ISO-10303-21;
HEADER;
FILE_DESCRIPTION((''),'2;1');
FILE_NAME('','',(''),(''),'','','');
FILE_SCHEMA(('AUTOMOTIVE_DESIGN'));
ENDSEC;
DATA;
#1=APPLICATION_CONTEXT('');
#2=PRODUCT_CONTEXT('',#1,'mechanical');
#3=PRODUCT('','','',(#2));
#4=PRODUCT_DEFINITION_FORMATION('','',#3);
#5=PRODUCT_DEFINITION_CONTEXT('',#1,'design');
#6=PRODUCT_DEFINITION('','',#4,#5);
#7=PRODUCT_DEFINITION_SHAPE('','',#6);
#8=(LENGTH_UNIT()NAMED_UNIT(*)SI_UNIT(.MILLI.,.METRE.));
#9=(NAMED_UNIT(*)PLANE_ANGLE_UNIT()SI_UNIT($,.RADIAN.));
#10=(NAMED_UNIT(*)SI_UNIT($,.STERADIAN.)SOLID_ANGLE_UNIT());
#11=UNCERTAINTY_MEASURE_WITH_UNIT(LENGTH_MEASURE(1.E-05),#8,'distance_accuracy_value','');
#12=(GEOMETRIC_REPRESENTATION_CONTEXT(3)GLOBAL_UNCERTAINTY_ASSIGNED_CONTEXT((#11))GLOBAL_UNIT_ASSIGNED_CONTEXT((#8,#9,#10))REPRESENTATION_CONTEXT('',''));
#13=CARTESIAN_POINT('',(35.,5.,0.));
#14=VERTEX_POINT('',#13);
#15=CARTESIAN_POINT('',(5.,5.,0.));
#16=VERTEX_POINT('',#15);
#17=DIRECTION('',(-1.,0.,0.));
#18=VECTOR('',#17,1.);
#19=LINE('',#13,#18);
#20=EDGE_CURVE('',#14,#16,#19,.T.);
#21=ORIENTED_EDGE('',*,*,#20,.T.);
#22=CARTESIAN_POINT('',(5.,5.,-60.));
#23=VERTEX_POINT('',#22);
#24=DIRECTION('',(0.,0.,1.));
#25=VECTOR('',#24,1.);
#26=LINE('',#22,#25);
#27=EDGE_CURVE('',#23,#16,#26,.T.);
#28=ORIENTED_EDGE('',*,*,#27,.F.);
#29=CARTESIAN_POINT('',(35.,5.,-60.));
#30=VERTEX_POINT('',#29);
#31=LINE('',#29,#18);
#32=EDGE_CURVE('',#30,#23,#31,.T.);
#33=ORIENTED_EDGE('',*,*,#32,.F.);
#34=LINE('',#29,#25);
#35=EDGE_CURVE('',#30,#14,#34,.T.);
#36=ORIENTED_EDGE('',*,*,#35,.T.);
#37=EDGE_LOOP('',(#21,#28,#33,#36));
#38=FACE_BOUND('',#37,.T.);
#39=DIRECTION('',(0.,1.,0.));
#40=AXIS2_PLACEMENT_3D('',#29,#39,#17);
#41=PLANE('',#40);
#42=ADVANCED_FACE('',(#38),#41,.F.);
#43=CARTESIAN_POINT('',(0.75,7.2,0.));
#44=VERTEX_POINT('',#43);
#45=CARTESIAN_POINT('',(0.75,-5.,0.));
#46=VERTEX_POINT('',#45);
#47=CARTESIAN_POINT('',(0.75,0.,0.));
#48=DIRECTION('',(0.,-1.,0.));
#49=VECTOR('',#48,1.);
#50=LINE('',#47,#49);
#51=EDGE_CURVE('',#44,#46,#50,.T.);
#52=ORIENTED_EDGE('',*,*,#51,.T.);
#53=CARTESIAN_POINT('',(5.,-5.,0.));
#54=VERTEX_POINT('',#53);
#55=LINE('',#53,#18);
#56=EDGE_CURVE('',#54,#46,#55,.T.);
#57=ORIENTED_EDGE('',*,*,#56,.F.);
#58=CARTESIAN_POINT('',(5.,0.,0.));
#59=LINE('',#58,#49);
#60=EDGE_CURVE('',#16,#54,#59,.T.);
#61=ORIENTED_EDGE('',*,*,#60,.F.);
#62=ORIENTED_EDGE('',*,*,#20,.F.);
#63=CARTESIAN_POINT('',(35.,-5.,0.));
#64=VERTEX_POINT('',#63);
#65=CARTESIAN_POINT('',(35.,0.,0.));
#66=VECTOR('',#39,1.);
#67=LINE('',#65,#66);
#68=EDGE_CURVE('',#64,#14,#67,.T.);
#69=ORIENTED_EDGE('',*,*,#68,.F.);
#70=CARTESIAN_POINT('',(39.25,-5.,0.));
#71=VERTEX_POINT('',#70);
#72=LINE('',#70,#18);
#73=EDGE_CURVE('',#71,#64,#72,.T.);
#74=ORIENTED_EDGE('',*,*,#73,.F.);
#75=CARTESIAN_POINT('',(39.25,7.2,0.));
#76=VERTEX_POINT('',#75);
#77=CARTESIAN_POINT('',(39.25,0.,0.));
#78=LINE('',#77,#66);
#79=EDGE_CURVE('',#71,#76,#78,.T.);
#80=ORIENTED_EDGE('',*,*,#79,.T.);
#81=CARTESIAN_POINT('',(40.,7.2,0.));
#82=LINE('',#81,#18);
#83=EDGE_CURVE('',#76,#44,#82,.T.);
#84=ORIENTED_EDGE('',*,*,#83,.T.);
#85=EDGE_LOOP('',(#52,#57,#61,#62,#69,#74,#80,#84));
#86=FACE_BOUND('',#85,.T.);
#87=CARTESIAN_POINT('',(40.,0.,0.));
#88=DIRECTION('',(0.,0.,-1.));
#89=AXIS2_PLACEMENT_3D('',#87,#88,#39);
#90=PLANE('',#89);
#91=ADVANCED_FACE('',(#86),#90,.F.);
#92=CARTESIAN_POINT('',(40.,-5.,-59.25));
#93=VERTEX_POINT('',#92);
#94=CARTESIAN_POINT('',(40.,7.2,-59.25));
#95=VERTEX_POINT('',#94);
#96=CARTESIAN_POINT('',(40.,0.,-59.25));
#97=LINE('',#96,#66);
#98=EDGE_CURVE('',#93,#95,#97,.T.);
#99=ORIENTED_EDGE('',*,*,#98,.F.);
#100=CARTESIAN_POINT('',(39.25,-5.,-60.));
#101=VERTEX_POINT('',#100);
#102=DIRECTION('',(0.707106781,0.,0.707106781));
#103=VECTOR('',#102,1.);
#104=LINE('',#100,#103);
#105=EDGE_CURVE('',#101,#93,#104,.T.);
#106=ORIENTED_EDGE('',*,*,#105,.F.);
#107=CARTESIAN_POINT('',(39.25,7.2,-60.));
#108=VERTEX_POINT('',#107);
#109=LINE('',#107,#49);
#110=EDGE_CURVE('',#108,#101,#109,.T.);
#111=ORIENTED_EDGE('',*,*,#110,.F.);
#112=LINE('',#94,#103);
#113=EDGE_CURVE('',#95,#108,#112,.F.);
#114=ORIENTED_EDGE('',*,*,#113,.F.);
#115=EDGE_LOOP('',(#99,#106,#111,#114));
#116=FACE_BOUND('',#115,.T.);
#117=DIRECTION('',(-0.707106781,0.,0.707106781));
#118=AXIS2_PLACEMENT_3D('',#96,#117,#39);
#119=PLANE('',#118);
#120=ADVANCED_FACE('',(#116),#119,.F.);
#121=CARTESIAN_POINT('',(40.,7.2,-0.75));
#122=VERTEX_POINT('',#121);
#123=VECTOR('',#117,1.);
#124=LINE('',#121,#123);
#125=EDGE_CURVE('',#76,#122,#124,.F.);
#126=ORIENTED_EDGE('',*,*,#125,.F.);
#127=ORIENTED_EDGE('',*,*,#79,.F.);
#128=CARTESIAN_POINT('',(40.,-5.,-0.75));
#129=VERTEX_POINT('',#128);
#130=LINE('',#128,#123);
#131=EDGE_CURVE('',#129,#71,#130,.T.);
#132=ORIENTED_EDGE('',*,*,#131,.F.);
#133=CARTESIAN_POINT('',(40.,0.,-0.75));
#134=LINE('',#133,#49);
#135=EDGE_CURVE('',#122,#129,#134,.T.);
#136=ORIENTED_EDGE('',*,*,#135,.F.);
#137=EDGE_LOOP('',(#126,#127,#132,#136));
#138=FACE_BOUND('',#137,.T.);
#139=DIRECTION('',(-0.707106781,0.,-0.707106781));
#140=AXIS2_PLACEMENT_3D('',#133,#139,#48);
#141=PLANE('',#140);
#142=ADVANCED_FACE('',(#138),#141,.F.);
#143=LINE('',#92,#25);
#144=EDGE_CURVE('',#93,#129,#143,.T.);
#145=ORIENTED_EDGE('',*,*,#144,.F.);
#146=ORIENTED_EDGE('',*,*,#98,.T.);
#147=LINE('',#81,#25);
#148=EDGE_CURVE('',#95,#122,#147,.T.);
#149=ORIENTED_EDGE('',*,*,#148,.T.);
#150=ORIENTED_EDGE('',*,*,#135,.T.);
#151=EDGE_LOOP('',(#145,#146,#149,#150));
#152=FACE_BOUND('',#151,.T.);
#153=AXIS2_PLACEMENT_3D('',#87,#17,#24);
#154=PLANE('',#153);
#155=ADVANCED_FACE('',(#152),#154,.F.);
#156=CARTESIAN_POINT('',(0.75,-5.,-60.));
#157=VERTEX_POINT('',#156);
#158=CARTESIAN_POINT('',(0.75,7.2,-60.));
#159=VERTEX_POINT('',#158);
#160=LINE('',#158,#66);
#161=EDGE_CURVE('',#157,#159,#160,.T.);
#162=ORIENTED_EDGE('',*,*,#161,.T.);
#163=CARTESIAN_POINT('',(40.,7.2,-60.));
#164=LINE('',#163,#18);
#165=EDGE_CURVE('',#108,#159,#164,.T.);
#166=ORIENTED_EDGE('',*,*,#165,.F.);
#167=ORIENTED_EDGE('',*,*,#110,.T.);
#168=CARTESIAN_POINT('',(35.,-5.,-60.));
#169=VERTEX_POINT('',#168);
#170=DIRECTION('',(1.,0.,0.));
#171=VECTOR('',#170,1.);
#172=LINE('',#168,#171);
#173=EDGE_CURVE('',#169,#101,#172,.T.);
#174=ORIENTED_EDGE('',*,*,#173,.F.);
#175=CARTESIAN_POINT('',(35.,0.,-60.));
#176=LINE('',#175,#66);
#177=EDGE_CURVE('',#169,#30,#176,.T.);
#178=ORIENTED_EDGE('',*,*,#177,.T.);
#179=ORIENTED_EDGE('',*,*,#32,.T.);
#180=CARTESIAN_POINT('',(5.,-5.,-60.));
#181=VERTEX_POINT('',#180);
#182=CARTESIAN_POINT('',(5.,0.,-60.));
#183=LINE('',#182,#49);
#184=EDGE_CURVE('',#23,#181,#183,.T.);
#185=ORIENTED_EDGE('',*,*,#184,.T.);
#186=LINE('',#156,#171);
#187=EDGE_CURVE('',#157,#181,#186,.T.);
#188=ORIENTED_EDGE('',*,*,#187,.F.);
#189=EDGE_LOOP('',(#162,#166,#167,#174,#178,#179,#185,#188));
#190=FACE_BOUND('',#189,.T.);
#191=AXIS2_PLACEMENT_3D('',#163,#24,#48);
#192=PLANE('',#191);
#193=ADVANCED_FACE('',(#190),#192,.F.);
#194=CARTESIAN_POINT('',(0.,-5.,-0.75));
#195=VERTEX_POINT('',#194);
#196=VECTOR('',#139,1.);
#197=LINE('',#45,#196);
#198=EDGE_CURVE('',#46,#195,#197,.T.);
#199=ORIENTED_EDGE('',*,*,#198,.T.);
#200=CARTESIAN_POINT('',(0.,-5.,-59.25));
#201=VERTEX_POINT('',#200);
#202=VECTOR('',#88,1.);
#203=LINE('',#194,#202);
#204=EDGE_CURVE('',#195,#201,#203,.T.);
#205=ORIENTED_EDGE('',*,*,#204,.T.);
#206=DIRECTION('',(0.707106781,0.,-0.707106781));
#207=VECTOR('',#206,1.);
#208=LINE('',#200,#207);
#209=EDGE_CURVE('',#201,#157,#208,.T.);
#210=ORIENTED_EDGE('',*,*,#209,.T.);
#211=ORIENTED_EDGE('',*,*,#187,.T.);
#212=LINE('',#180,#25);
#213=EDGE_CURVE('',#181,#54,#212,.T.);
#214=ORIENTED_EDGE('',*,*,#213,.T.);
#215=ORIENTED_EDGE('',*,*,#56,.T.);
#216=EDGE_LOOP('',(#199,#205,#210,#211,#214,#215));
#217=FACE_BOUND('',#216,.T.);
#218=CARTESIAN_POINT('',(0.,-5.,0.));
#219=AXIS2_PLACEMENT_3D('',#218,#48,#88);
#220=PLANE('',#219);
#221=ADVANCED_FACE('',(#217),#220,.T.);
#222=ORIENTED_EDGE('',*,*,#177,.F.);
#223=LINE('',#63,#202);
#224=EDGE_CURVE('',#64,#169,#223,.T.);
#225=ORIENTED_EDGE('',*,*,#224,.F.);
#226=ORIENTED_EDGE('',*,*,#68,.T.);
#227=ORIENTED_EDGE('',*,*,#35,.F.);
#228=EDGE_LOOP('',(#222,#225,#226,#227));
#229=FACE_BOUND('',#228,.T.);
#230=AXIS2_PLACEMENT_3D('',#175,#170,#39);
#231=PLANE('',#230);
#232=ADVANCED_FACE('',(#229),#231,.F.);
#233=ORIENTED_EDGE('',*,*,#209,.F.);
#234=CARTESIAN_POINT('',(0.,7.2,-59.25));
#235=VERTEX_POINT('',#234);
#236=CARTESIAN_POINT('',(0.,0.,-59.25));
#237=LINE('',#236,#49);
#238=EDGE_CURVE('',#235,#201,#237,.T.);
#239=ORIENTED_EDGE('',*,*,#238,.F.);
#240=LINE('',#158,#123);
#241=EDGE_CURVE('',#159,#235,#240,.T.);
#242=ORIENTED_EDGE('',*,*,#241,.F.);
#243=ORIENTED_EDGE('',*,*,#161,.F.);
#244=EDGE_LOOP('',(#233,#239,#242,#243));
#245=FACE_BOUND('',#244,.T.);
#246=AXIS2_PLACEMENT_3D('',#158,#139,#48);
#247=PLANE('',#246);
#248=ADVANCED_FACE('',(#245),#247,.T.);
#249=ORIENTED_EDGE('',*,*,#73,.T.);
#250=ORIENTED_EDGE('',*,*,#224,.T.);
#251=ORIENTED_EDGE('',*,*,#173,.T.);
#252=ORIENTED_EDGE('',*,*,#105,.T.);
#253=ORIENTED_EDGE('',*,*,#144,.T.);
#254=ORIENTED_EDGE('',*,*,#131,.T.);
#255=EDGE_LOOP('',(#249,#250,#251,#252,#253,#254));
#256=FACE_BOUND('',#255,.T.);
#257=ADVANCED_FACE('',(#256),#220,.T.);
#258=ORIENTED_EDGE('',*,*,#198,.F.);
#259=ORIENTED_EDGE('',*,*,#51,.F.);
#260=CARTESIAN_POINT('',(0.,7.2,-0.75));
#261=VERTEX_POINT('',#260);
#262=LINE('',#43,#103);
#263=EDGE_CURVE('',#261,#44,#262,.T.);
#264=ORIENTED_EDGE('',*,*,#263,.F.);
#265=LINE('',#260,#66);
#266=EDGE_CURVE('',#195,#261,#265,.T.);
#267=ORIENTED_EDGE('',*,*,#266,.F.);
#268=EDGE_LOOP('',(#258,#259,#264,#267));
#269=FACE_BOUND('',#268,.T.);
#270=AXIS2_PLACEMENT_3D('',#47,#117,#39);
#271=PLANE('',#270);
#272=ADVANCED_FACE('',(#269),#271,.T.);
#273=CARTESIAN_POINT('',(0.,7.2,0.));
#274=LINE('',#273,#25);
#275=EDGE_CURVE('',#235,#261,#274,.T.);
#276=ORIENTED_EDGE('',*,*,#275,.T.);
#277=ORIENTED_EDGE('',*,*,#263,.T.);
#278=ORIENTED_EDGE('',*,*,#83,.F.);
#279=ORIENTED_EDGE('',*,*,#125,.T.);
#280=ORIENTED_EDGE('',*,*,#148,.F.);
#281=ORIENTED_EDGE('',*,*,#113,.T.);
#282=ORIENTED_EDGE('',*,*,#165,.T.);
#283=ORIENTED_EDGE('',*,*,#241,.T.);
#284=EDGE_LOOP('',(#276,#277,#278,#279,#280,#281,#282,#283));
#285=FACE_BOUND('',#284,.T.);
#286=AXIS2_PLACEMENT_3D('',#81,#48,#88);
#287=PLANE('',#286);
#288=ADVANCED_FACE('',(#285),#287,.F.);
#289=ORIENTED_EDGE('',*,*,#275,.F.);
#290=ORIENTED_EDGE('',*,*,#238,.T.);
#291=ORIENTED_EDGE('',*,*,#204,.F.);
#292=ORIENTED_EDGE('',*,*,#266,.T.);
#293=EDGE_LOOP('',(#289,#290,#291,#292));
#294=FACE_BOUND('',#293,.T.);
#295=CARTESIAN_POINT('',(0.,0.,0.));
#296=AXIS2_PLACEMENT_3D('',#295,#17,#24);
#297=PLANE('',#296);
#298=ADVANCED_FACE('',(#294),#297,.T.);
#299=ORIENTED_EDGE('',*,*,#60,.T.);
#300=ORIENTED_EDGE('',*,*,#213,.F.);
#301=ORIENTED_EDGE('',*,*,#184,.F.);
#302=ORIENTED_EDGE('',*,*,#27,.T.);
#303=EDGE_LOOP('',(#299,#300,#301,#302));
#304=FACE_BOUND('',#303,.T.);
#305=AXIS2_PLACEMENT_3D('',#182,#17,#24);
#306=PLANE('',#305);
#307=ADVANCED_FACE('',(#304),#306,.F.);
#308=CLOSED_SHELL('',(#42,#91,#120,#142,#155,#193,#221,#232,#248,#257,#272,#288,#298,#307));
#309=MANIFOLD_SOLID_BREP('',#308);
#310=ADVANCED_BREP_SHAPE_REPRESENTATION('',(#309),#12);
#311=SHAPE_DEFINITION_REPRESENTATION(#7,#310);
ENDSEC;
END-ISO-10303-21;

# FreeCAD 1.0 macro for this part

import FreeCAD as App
import Part
import Sketcher

V = App.Vector


def edges_at(feature, points):
    """Names of the edges that pass closest to the given points."""
    edges = feature.Shape.Edges
    near = lambda p: min(range(len(edges)), key=lambda i: edges[i].distToShape(Part.Vertex(*p))[0])
    return sorted({f"Edge{near(p) + 1}" for p in points})

doc = App.newDocument("Part")
params = doc.addObject("Spreadsheet::Sheet", "Params")
for row, (alias, value) in enumerate([
    ("sketch1_width", "5 mm"),
    ("sketch1_height", "60 mm"),
    ("sketch1_width2", "7.2 mm"),
    ("pad1_length", "40 mm"),
    ("sketch2_height", "5 mm"),
    ("sketch2_height2", "1.1 mm"),
    ("sketch2_width", "2.05 mm"),
    ("chamfer_size", "0.75 mm"),
    ("sketch3_height", "5 mm"),
    ("sketch3_width", "7.25 mm"),
    ("pocket2_length", "64 mm"),
    ("sketch4_width", "38.5 mm"),
    ("sketch4_height", "1.1 mm"),
    ("pad2_length", "60 mm"),
    ("sketch5_width", "30 mm"),
    ("sketch5_height", "1.1 mm"),
    ("pad3_length", "50 mm"),
    ("sketch6_height", "60 mm"),
    ("sketch6_height2", "58.5 mm"),
    ("pad4_length", "5 mm"),
    ("sketch7_width", "1.1 mm"),
    ("pad5_length", "5 mm"),
    ("pad5_length2", "35 mm"),
    ("sketch8_width", "3.9 mm"),
    ("sketch9_width", "7.8 mm"),
    ("pad6_length", "40 mm"),
    ("sketch10_width", "30 mm"),
    ("sketch10_height", "10 mm"),
    ("pocket4_length", "64 mm"),
], start=1):
    params.set(f"A{row}", alias)
    params.set(f"B{row}", "=" + value)
    params.setAlias(f"B{row}", alias)

body = doc.addObject("PartDesign::Body", "Body")

# Sketch on YZ plane
sketch1 = doc.addObject("Sketcher::SketchObject", "Sketch")
body.addObject(sketch1)
sketch1.AttachmentSupport = (doc.YZ_Plane, [""])
sketch1.MapMode = "FlatFace"
sketch1.addGeometry(Part.LineSegment(V(7, 0, 0), V(0, 0, 0)), False)
sketch1.addGeometry(Part.LineSegment(V(0, 0, 0), V(0, -60, 0)), False)
sketch1.addGeometry(Part.LineSegment(V(0, -60, 0), V(7, -60, 0)), False)
sketch1.addGeometry(Part.LineSegment(V(7, -60, 0), V(7, 0, 0)), False)
sketch1.addGeometry(Part.LineSegment(V(1, -26, 0), V(1, -7, 0)), False)
sketch1.addGeometry(Part.LineSegment(V(1, -7, 0), V(6, -7, 0)), False)
sketch1.addGeometry(Part.LineSegment(V(6, -7, 0), V(6, -26, 0)), False)
sketch1.addGeometry(Part.LineSegment(V(6, -26, 0), V(1, -26, 0)), False)
sketch1.addGeometry(Part.LineSegment(V(1, -53, 0), V(1, -34, 0)), False)
sketch1.addGeometry(Part.LineSegment(V(1, -34, 0), V(6, -34, 0)), False)
sketch1.addGeometry(Part.LineSegment(V(6, -34, 0), V(6, -53, 0)), False)
sketch1.addGeometry(Part.LineSegment(V(6, -53, 0), V(1, -53, 0)), False)
sketch1.addConstraint(Sketcher.Constraint("Coincident", 0, 2, 1, 1))
sketch1.addConstraint(Sketcher.Constraint("Coincident", 1, 2, 2, 1))
sketch1.addConstraint(Sketcher.Constraint("Coincident", 2, 2, 3, 1))
sketch1.addConstraint(Sketcher.Constraint("Coincident", 3, 2, 0, 1))
sketch1.addConstraint(Sketcher.Constraint("Coincident", 4, 2, 5, 1))
sketch1.addConstraint(Sketcher.Constraint("Coincident", 5, 2, 6, 1))
sketch1.addConstraint(Sketcher.Constraint("Coincident", 6, 2, 7, 1))
sketch1.addConstraint(Sketcher.Constraint("Coincident", 7, 2, 4, 1))
sketch1.addConstraint(Sketcher.Constraint("Coincident", 8, 2, 9, 1))
sketch1.addConstraint(Sketcher.Constraint("Coincident", 9, 2, 10, 1))
sketch1.addConstraint(Sketcher.Constraint("Coincident", 10, 2, 11, 1))
sketch1.addConstraint(Sketcher.Constraint("Coincident", 11, 2, 8, 1))
sketch1.addConstraint(Sketcher.Constraint("Horizontal", 0))
sketch1.addConstraint(Sketcher.Constraint("Vertical", 1))
sketch1.addConstraint(Sketcher.Constraint("Horizontal", 2))
sketch1.addConstraint(Sketcher.Constraint("Vertical", 3))
sketch1.addConstraint(Sketcher.Constraint("Vertical", 4))
sketch1.addConstraint(Sketcher.Constraint("Horizontal", 5))
sketch1.addConstraint(Sketcher.Constraint("Vertical", 6))
sketch1.addConstraint(Sketcher.Constraint("Horizontal", 7))
sketch1.addConstraint(Sketcher.Constraint("Vertical", 8))
sketch1.addConstraint(Sketcher.Constraint("Horizontal", 9))
sketch1.addConstraint(Sketcher.Constraint("Vertical", 10))
sketch1.addConstraint(Sketcher.Constraint("Horizontal", 11))
sketch1.addConstraint(Sketcher.Constraint("Coincident", 0, 2, -1, 1))
sketch1.addConstraint(Sketcher.Constraint("Vertical", 7, 2, 8, 2))
sketch1.addConstraint(Sketcher.Constraint("Vertical", 6, 2, 9, 2))
sketch1.addConstraint(Sketcher.Constraint("Equal", 6, 8))
sketch1.addConstraint(Sketcher.Constraint("DistanceX", 5, 1, 5, 2, 5.0))
sketch1.addConstraint(Sketcher.Constraint("DistanceY", 1, 2, 1, 1, 60.0))
sketch1.addConstraint(Sketcher.Constraint("DistanceX", 0, 2, 0, 1, 7.2))
sketch1.addConstraint(Sketcher.Constraint("DistanceX", -1, 1, 4, 2, 1.1))
sketch1.addConstraint(Sketcher.Constraint("DistanceY", 4, 1, 4, 2, 19.125))
sketch1.addConstraint(Sketcher.Constraint("DistanceY", 4, 2, -1, 1, 7.25))
sketch1.addConstraint(Sketcher.Constraint("DistanceY", 10, 2, -1, 1, 52.75))
sketch1.setExpression("Constraints[28]", "Params.sketch1_width")
sketch1.setExpression("Constraints[29]", "Params.sketch1_height")
sketch1.setExpression("Constraints[30]", "Params.sketch1_width2")
pad1 = doc.addObject("PartDesign::Pad", "Pad")
body.addObject(pad1)
pad1.Profile = sketch1
pad1.setExpression("Length", "Params.pad1_length")

# Sketch on XY plane
sketch2 = doc.addObject("Sketcher::SketchObject", "Sketch001")
body.addObject(sketch2)
sketch2.AttachmentSupport = (doc.XY_Plane, [""])
sketch2.MapMode = "FlatFace"
sketch2.addGeometry(Part.LineSegment(V(5, 5, 0), V(5, 0, 0)), False)
sketch2.addGeometry(Part.LineSegment(V(5, 0, 0), V(16.4, 0, 0)), False)
sketch2.addGeometry(Part.LineSegment(V(16.4, 0, 0), V(16.4, 5, 0)), False)
sketch2.addGeometry(Part.LineSegment(V(16.4, 5, 0), V(5, 5, 0)), False)
sketch2.addGeometry(Part.LineSegment(V(23.6, 5, 0), V(23.6, 0, 0)), False)
sketch2.addGeometry(Part.LineSegment(V(23.6, 0, 0), V(35, 0, 0)), False)
sketch2.addGeometry(Part.LineSegment(V(35, 0, 0), V(35, 5, 0)), False)
sketch2.addGeometry(Part.LineSegment(V(35, 5, 0), V(23.6, 5, 0)), False)
sketch2.addGeometry(Part.LineSegment(V(14.3, 7.2, 0), V(14.3, 6.1, 0)), False)
sketch2.addGeometry(Part.LineSegment(V(14.3, 6.1, 0), V(16.4, 6.1, 0)), False)
sketch2.addGeometry(Part.LineSegment(V(16.4, 6.1, 0), V(16.4, 7.2, 0)), False)
sketch2.addGeometry(Part.LineSegment(V(16.4, 7.2, 0), V(14.3, 7.2, 0)), False)
sketch2.addGeometry(Part.LineSegment(V(7.2, 7.2, 0), V(7.2, 6.1, 0)), False)
sketch2.addGeometry(Part.LineSegment(V(7.2, 6.1, 0), V(9.3, 6.1, 0)), False)
sketch2.addGeometry(Part.LineSegment(V(9.3, 6.1, 0), V(9.3, 7.2, 0)), False)
sketch2.addGeometry(Part.LineSegment(V(9.3, 7.2, 0), V(7.2, 7.2, 0)), False)
sketch2.addGeometry(Part.LineSegment(V(23.6, 7.2, 0), V(23.6, 6.1, 0)), False)
sketch2.addGeometry(Part.LineSegment(V(23.6, 6.1, 0), V(25.7, 6.1, 0)), False)
sketch2.addGeometry(Part.LineSegment(V(25.7, 6.1, 0), V(25.7, 7.2, 0)), False)
sketch2.addGeometry(Part.LineSegment(V(25.7, 7.2, 0), V(23.6, 7.2, 0)), False)
sketch2.addGeometry(Part.LineSegment(V(30.7, 7.2, 0), V(30.7, 6.1, 0)), False)
sketch2.addGeometry(Part.LineSegment(V(30.7, 6.1, 0), V(32.8, 6.1, 0)), False)
sketch2.addGeometry(Part.LineSegment(V(32.8, 6.1, 0), V(32.8, 7.2, 0)), False)
sketch2.addGeometry(Part.LineSegment(V(32.8, 7.2, 0), V(30.7, 7.2, 0)), False)
sketch2.addConstraint(Sketcher.Constraint("Coincident", 0, 2, 1, 1))
sketch2.addConstraint(Sketcher.Constraint("Coincident", 1, 2, 2, 1))
sketch2.addConstraint(Sketcher.Constraint("Coincident", 2, 2, 3, 1))
sketch2.addConstraint(Sketcher.Constraint("Coincident", 3, 2, 0, 1))
sketch2.addConstraint(Sketcher.Constraint("Coincident", 4, 2, 5, 1))
sketch2.addConstraint(Sketcher.Constraint("Coincident", 5, 2, 6, 1))
sketch2.addConstraint(Sketcher.Constraint("Coincident", 6, 2, 7, 1))
sketch2.addConstraint(Sketcher.Constraint("Coincident", 7, 2, 4, 1))
sketch2.addConstraint(Sketcher.Constraint("Coincident", 8, 2, 9, 1))
sketch2.addConstraint(Sketcher.Constraint("Coincident", 9, 2, 10, 1))
sketch2.addConstraint(Sketcher.Constraint("Coincident", 10, 2, 11, 1))
sketch2.addConstraint(Sketcher.Constraint("Coincident", 11, 2, 8, 1))
sketch2.addConstraint(Sketcher.Constraint("Coincident", 12, 2, 13, 1))
sketch2.addConstraint(Sketcher.Constraint("Coincident", 13, 2, 14, 1))
sketch2.addConstraint(Sketcher.Constraint("Coincident", 14, 2, 15, 1))
sketch2.addConstraint(Sketcher.Constraint("Coincident", 15, 2, 12, 1))
sketch2.addConstraint(Sketcher.Constraint("Coincident", 16, 2, 17, 1))
sketch2.addConstraint(Sketcher.Constraint("Coincident", 17, 2, 18, 1))
sketch2.addConstraint(Sketcher.Constraint("Coincident", 18, 2, 19, 1))
sketch2.addConstraint(Sketcher.Constraint("Coincident", 19, 2, 16, 1))
sketch2.addConstraint(Sketcher.Constraint("Coincident", 20, 2, 21, 1))
sketch2.addConstraint(Sketcher.Constraint("Coincident", 21, 2, 22, 1))
sketch2.addConstraint(Sketcher.Constraint("Coincident", 22, 2, 23, 1))
sketch2.addConstraint(Sketcher.Constraint("Coincident", 23, 2, 20, 1))
sketch2.addConstraint(Sketcher.Constraint("Vertical", 0))
sketch2.addConstraint(Sketcher.Constraint("Horizontal", 1))
sketch2.addConstraint(Sketcher.Constraint("Vertical", 2))
sketch2.addConstraint(Sketcher.Constraint("Horizontal", 3))
sketch2.addConstraint(Sketcher.Constraint("Vertical", 4))
sketch2.addConstraint(Sketcher.Constraint("Horizontal", 5))
sketch2.addConstraint(Sketcher.Constraint("Vertical", 6))
sketch2.addConstraint(Sketcher.Constraint("Horizontal", 7))
sketch2.addConstraint(Sketcher.Constraint("Vertical", 8))
sketch2.addConstraint(Sketcher.Constraint("Horizontal", 9))
sketch2.addConstraint(Sketcher.Constraint("Vertical", 10))
sketch2.addConstraint(Sketcher.Constraint("Horizontal", 11))
sketch2.addConstraint(Sketcher.Constraint("Vertical", 12))
sketch2.addConstraint(Sketcher.Constraint("Horizontal", 13))
sketch2.addConstraint(Sketcher.Constraint("Vertical", 14))
sketch2.addConstraint(Sketcher.Constraint("Horizontal", 15))
sketch2.addConstraint(Sketcher.Constraint("Vertical", 16))
sketch2.addConstraint(Sketcher.Constraint("Horizontal", 17))
sketch2.addConstraint(Sketcher.Constraint("Vertical", 18))
sketch2.addConstraint(Sketcher.Constraint("Horizontal", 19))
sketch2.addConstraint(Sketcher.Constraint("Vertical", 20))
sketch2.addConstraint(Sketcher.Constraint("Horizontal", 21))
sketch2.addConstraint(Sketcher.Constraint("Vertical", 22))
sketch2.addConstraint(Sketcher.Constraint("Horizontal", 23))
sketch2.addConstraint(Sketcher.Constraint("PointOnObject", 0, 2, -1))
sketch2.addConstraint(Sketcher.Constraint("PointOnObject", 4, 2, -1))
sketch2.addConstraint(Sketcher.Constraint("Horizontal", 3, 2, 6, 2))
sketch2.addConstraint(Sketcher.Constraint("Horizontal", 9, 2, 12, 2))
sketch2.addConstraint(Sketcher.Constraint("Horizontal", 11, 2, 14, 2))
sketch2.addConstraint(Sketcher.Constraint("Horizontal", 13, 2, 16, 2))
sketch2.addConstraint(Sketcher.Constraint("Horizontal", 15, 2, 18, 2))
sketch2.addConstraint(Sketcher.Constraint("Horizontal", 17, 2, 20, 2))
sketch2.addConstraint(Sketcher.Constraint("Horizontal", 19, 2, 22, 2))
sketch2.addConstraint(Sketcher.Constraint("Vertical", 2, 2, 9, 2))
sketch2.addConstraint(Sketcher.Constraint("Vertical", 7, 2, 16, 2))
sketch2.addConstraint(Sketcher.Constraint("Equal", 3, 5))
sketch2.addConstraint(Sketcher.Constraint("Equal", 11, 17))
sketch2.addConstraint(Sketcher.Constraint("Equal", 15, 21))
sketch2.addConstraint(Sketcher.Constraint("DistanceY", 0, 2, 0, 1, 5.0))
sketch2.addConstraint(Sketcher.Constraint("DistanceY", 8, 2, 8, 1, 1.1))
sketch2.addConstraint(Sketcher.Constraint("DistanceX", -1, 1, 0, 2, 5.0))
sketch2.addConstraint(Sketcher.Constraint("DistanceX", -1, 1, 5, 2, 35.0))
sketch2.addConstraint(Sketcher.Constraint("DistanceX", 13, 2, 8, 2, 5.0))
sketch2.addConstraint(Sketcher.Constraint("DistanceX", 17, 2, 20, 2, 5.0))
sketch2.addConstraint(Sketcher.Constraint("DistanceX", 13, 1, 13, 2, 2.05))
sketch2.addConstraint(Sketcher.Constraint("DistanceX", -1, 1, 8, 2, 14.3))
sketch2.addConstraint(Sketcher.Constraint("DistanceY", -1, 1, 8, 2, 6.1))
sketch2.addConstraint(Sketcher.Constraint("DistanceX", 1, 1, 1, 2, 11.375))
sketch2.setExpression("Constraints[62]", "Params.sketch2_height")
sketch2.setExpression("Constraints[63]", "Params.sketch2_height2")
sketch2.setExpression("Constraints[68]", "Params.sketch2_width")
pocket1 = doc.addObject("PartDesign::Pocket", "Pocket")
body.addObject(pocket1)
pocket1.Profile = sketch2
pocket1.Type = "ThroughAll"
doc.recompute()

chamfer = doc.addObject("PartDesign::Chamfer", "Chamfer")
body.addObject(chamfer)
chamfer.Base = (pocket1, edges_at(pocket1, [
    (40, 3.6, 0),
    (0, 3.6, 0),
    (0, 3.6, -60),
    (40, 3.6, -60),
]))
chamfer.setExpression("Size", "Params.chamfer_size")

# Sketch on XY plane
sketch3 = doc.addObject("Sketcher::SketchObject", "Sketch002")
body.addObject(sketch3)
sketch3.AttachmentSupport = (doc.XY_Plane, [""])
sketch3.MapMode = "FlatFace"
sketch3.addGeometry(Part.LineSegment(V(16, 5, 0), V(16, 0, 0)), False)
sketch3.addGeometry(Part.LineSegment(V(16, 0, 0), V(24, 0, 0)), False)
sketch3.addGeometry(Part.LineSegment(V(24, 0, 0), V(24, 5, 0)), False)
sketch3.addGeometry(Part.LineSegment(V(24, 5, 0), V(16, 5, 0)), False)
sketch3.addConstraint(Sketcher.Constraint("Coincident", 0, 2, 1, 1))
sketch3.addConstraint(Sketcher.Constraint("Coincident", 1, 2, 2, 1))
sketch3.addConstraint(Sketcher.Constraint("Coincident", 2, 2, 3, 1))
sketch3.addConstraint(Sketcher.Constraint("Coincident", 3, 2, 0, 1))
sketch3.addConstraint(Sketcher.Constraint("Vertical", 0))
sketch3.addConstraint(Sketcher.Constraint("Horizontal", 1))
sketch3.addConstraint(Sketcher.Constraint("Vertical", 2))
sketch3.addConstraint(Sketcher.Constraint("Horizontal", 3))
sketch3.addConstraint(Sketcher.Constraint("PointOnObject", 0, 2, -1))
sketch3.addConstraint(Sketcher.Constraint("DistanceY", 0, 2, 0, 1, 5.0))
sketch3.addConstraint(Sketcher.Constraint("DistanceX", 1, 1, 1, 2, 7.25))
sketch3.addConstraint(Sketcher.Constraint("DistanceX", -1, 1, 0, 2, 16.375))
sketch3.setExpression("Constraints[9]", "Params.sketch3_height")
sketch3.setExpression("Constraints[10]", "Params.sketch3_width")
pocket2 = doc.addObject("PartDesign::Pocket", "Pocket001")
body.addObject(pocket2)
pocket2.Profile = sketch3
pocket2.setExpression("Length", "Params.pocket2_length")

# Sketch on XY plane
sketch4 = doc.addObject("Sketcher::SketchObject", "Sketch003")
body.addObject(sketch4)
sketch4.AttachmentSupport = (doc.XY_Plane, [""])
sketch4.MapMode = "FlatFace"
sketch4.addGeometry(Part.LineSegment(V(0.8, 7.2, 0), V(0.8, 6.1, 0)), False)
sketch4.addGeometry(Part.LineSegment(V(0.8, 6.1, 0), V(39.2, 6.1, 0)), False)
sketch4.addGeometry(Part.LineSegment(V(39.2, 6.1, 0), V(39.2, 7.2, 0)), False)
sketch4.addGeometry(Part.LineSegment(V(39.2, 7.2, 0), V(0.8, 7.2, 0)), False)
sketch4.addConstraint(Sketcher.Constraint("Coincident", 0, 2, 1, 1))
sketch4.addConstraint(Sketcher.Constraint("Coincident", 1, 2, 2, 1))
sketch4.addConstraint(Sketcher.Constraint("Coincident", 2, 2, 3, 1))
sketch4.addConstraint(Sketcher.Constraint("Coincident", 3, 2, 0, 1))
sketch4.addConstraint(Sketcher.Constraint("Vertical", 0))
sketch4.addConstraint(Sketcher.Constraint("Horizontal", 1))
sketch4.addConstraint(Sketcher.Constraint("Vertical", 2))
sketch4.addConstraint(Sketcher.Constraint("Horizontal", 3))
sketch4.addConstraint(Sketcher.Constraint("DistanceX", 1, 1, 1, 2, 38.5))
sketch4.addConstraint(Sketcher.Constraint("DistanceY", 0, 2, 0, 1, 1.1))
sketch4.addConstraint(Sketcher.Constraint("DistanceY", -1, 1, 0, 2, 6.1))
sketch4.addConstraint(Sketcher.Constraint("DistanceX", -1, 1, 0, 2, 0.75))
sketch4.setExpression("Constraints[8]", "Params.sketch4_width")
sketch4.setExpression("Constraints[9]", "Params.sketch4_height")
pad2 = doc.addObject("PartDesign::Pad", "Pad001")
body.addObject(pad2)
pad2.Profile = sketch4
pad2.setExpression("Length", "Params.pad2_length")
pad2.Reversed = True

# Sketch on XY plane
sketch5 = doc.addObject("Sketcher::SketchObject", "Sketch004")
body.addObject(sketch5)
sketch5.AttachmentSupport = (doc.XY_Plane, [""])
sketch5.MapMode = "FlatFace"
sketch5.AttachmentOffset = App.Placement(V(0, 0, -52.75), App.Rotation())
sketch5.addGeometry(Part.LineSegment(V(5, 6.1, 0), V(5, 5, 0)), False)
sketch5.addGeometry(Part.LineSegment(V(5, 5, 0), V(35, 5, 0)), False)
sketch5.addGeometry(Part.LineSegment(V(35, 5, 0), V(35, 6.1, 0)), False)
sketch5.addGeometry(Part.LineSegment(V(35, 6.1, 0), V(5, 6.1, 0)), False)
sketch5.addConstraint(Sketcher.Constraint("Coincident", 0, 2, 1, 1))
sketch5.addConstraint(Sketcher.Constraint("Coincident", 1, 2, 2, 1))
sketch5.addConstraint(Sketcher.Constraint("Coincident", 2, 2, 3, 1))
sketch5.addConstraint(Sketcher.Constraint("Coincident", 3, 2, 0, 1))
sketch5.addConstraint(Sketcher.Constraint("Vertical", 0))
sketch5.addConstraint(Sketcher.Constraint("Horizontal", 1))
sketch5.addConstraint(Sketcher.Constraint("Vertical", 2))
sketch5.addConstraint(Sketcher.Constraint("Horizontal", 3))
sketch5.addConstraint(Sketcher.Constraint("DistanceX", 1, 1, 1, 2, 30.0))
sketch5.addConstraint(Sketcher.Constraint("DistanceY", 0, 2, 0, 1, 1.1))
sketch5.addConstraint(Sketcher.Constraint("DistanceX", -1, 1, 0, 2, 5.0))
sketch5.addConstraint(Sketcher.Constraint("DistanceY", -1, 1, 0, 2, 5.0))
sketch5.setExpression("Constraints[8]", "Params.sketch5_width")
sketch5.setExpression("Constraints[9]", "Params.sketch5_height")
pad3 = doc.addObject("PartDesign::Pad", "Pad002")
body.addObject(pad3)
pad3.Profile = sketch5
pad3.setExpression("Length", "Params.pad3_length")

# Sketch on XZ plane
sketch6 = doc.addObject("Sketcher::SketchObject", "Sketch005")
body.addObject(sketch6)
sketch6.AttachmentSupport = (doc.XZ_Plane, [""])
sketch6.MapMode = "FlatFace"
sketch6.addGeometry(Part.LineSegment(V(5, 0, 0), V(0.8, 0, 0)), False)
sketch6.addGeometry(Part.LineSegment(V(0.8, 0, 0), V(0, -0.8, 0)), False)
sketch6.addGeometry(Part.LineSegment(V(0, -0.8, 0), V(0, -59.2, 0)), False)
sketch6.addGeometry(Part.LineSegment(V(0, -59.2, 0), V(0.8, -60, 0)), False)
sketch6.addGeometry(Part.LineSegment(V(0.8, -60, 0), V(5, -60, 0)), False)
sketch6.addGeometry(Part.LineSegment(V(5, -60, 0), V(5, 0, 0)), False)
sketch6.addGeometry(Part.LineSegment(V(35, 0, 0), V(35, -60, 0)), False)
sketch6.addGeometry(Part.LineSegment(V(35, -60, 0), V(39.2, -60, 0)), False)
sketch6.addGeometry(Part.LineSegment(V(39.2, -60, 0), V(40, -59.2, 0)), False)
sketch6.addGeometry(Part.LineSegment(V(40, -59.2, 0), V(40, -0.8, 0)), False)
sketch6.addGeometry(Part.LineSegment(V(40, -0.8, 0), V(39.2, 0, 0)), False)
sketch6.addGeometry(Part.LineSegment(V(39.2, 0, 0), V(35, 0, 0)), False)
sketch6.addConstraint(Sketcher.Constraint("Coincident", 0, 2, 1, 1))
sketch6.addConstraint(Sketcher.Constraint("Coincident", 1, 2, 2, 1))
sketch6.addConstraint(Sketcher.Constraint("Coincident", 2, 2, 3, 1))
sketch6.addConstraint(Sketcher.Constraint("Coincident", 3, 2, 4, 1))
sketch6.addConstraint(Sketcher.Constraint("Coincident", 4, 2, 5, 1))
sketch6.addConstraint(Sketcher.Constraint("Coincident", 5, 2, 0, 1))
sketch6.addConstraint(Sketcher.Constraint("Coincident", 6, 2, 7, 1))
sketch6.addConstraint(Sketcher.Constraint("Coincident", 7, 2, 8, 1))
sketch6.addConstraint(Sketcher.Constraint("Coincident", 8, 2, 9, 1))
sketch6.addConstraint(Sketcher.Constraint("Coincident", 9, 2, 10, 1))
sketch6.addConstraint(Sketcher.Constraint("Coincident", 10, 2, 11, 1))
sketch6.addConstraint(Sketcher.Constraint("Coincident", 11, 2, 6, 1))
sketch6.addConstraint(Sketcher.Constraint("Horizontal", 0))
sketch6.addConstraint(Sketcher.Constraint("Vertical", 2))
sketch6.addConstraint(Sketcher.Constraint("Horizontal", 4))
sketch6.addConstraint(Sketcher.Constraint("Vertical", 5))
sketch6.addConstraint(Sketcher.Constraint("Vertical", 6))
sketch6.addConstraint(Sketcher.Constraint("Horizontal", 7))
sketch6.addConstraint(Sketcher.Constraint("Vertical", 9))
sketch6.addConstraint(Sketcher.Constraint("Horizontal", 11))
sketch6.addConstraint(Sketcher.Constraint("PointOnObject", 0, 2, -1))
sketch6.addConstraint(Sketcher.Constraint("PointOnObject", 1, 2, -2))
sketch6.addConstraint(Sketcher.Constraint("PointOnObject", 10, 2, -1))
sketch6.addConstraint(Sketcher.Constraint("Perpendicular", 1, 3))
sketch6.addConstraint(Sketcher.Constraint("Perpendicular", 3, 8))
sketch6.addConstraint(Sketcher.Constraint("Perpendicular", 8, 10))
sketch6.addConstraint(Sketcher.Constraint("Horizontal", 4, 2, 6, 2))
sketch6.addConstraint(Sketcher.Constraint("Horizontal", 2, 2, 8, 2))
sketch6.addConstraint(Sketcher.Constraint("Horizontal", 1, 2, 9, 2))
sketch6.addConstraint(Sketcher.Constraint("Vertical", 0, 2, 3, 2))
sketch6.addConstraint(Sketcher.Constraint("Vertical", 7, 2, 10, 2))
sketch6.addConstraint(Sketcher.Constraint("Equal", 4, 7))
sketch6.addConstraint(Sketcher.Constraint("DistanceY", 5, 1, 5, 2, 60.0))
sketch6.addConstraint(Sketcher.Constraint("DistanceY", 2, 2, 2, 1, 58.5))
sketch6.addConstraint(Sketcher.Constraint("DistanceX", -1, 1, 4, 2, 5.0))
sketch6.addConstraint(Sketcher.Constraint("DistanceX", -1, 1, 6, 2, 35.0))
sketch6.setExpression("Constraints[32]", "Params.sketch6_height")
sketch6.setExpression("Constraints[33]", "Params.sketch6_height2")
pad4 = doc.addObject("PartDesign::Pad", "Pad003")
body.addObject(pad4)
pad4.Profile = sketch6
pad4.setExpression("Length", "Params.pad4_length")

# Sketch on YZ plane
sketch7 = doc.addObject("Sketcher::SketchObject", "Sketch006")
body.addObject(sketch7)
sketch7.AttachmentSupport = (doc.YZ_Plane, [""])
sketch7.MapMode = "FlatFace"
sketch7.AttachmentOffset = App.Placement(V(0, 0, 35), App.Rotation())
sketch7.addGeometry(Part.LineSegment(V(6.1, -7.2, 0), V(5, -7.2, 0)), False)
sketch7.addGeometry(Part.LineSegment(V(5, -7.2, 0), V(5, -26.4, 0)), False)
sketch7.addGeometry(Part.LineSegment(V(5, -26.4, 0), V(6.1, -26.4, 0)), False)
sketch7.addGeometry(Part.LineSegment(V(6.1, -26.4, 0), V(6.1, -7.2, 0)), False)
sketch7.addGeometry(Part.LineSegment(V(6.1, -33.6, 0), V(5, -33.6, 0)), False)
sketch7.addGeometry(Part.LineSegment(V(5, -33.6, 0), V(5, -52.8, 0)), False)
sketch7.addGeometry(Part.LineSegment(V(5, -52.8, 0), V(6.1, -52.8, 0)), False)
sketch7.addGeometry(Part.LineSegment(V(6.1, -52.8, 0), V(6.1, -33.6, 0)), False)
sketch7.addConstraint(Sketcher.Constraint("Coincident", 0, 2, 1, 1))
sketch7.addConstraint(Sketcher.Constraint("Coincident", 1, 2, 2, 1))
sketch7.addConstraint(Sketcher.Constraint("Coincident", 2, 2, 3, 1))
sketch7.addConstraint(Sketcher.Constraint("Coincident", 3, 2, 0, 1))
sketch7.addConstraint(Sketcher.Constraint("Coincident", 4, 2, 5, 1))
sketch7.addConstraint(Sketcher.Constraint("Coincident", 5, 2, 6, 1))
sketch7.addConstraint(Sketcher.Constraint("Coincident", 6, 2, 7, 1))
sketch7.addConstraint(Sketcher.Constraint("Coincident", 7, 2, 4, 1))
sketch7.addConstraint(Sketcher.Constraint("Horizontal", 0))
sketch7.addConstraint(Sketcher.Constraint("Vertical", 1))
sketch7.addConstraint(Sketcher.Constraint("Horizontal", 2))
sketch7.addConstraint(Sketcher.Constraint("Vertical", 3))
sketch7.addConstraint(Sketcher.Constraint("Horizontal", 4))
sketch7.addConstraint(Sketcher.Constraint("Vertical", 5))
sketch7.addConstraint(Sketcher.Constraint("Horizontal", 6))
sketch7.addConstraint(Sketcher.Constraint("Vertical", 7))
sketch7.addConstraint(Sketcher.Constraint("Vertical", 1, 2, 4, 2))
sketch7.addConstraint(Sketcher.Constraint("Vertical", 3, 2, 6, 2))
sketch7.addConstraint(Sketcher.Constraint("Equal", 3, 5))
sketch7.addConstraint(Sketcher.Constraint("DistanceX", 0, 2, 0, 1, 1.1))
sketch7.addConstraint(Sketcher.Constraint("DistanceX", -1, 1, 0, 2, 5.0))
sketch7.addConstraint(Sketcher.Constraint("DistanceY", 5, 2, 0, 2, 45.5))
sketch7.addConstraint(Sketcher.Constraint("DistanceY", 1, 2, 1, 1, 19.125))
sketch7.addConstraint(Sketcher.Constraint("DistanceY", 0, 2, -1, 1, 7.25))
sketch7.setExpression("Constraints[19]", "Params.sketch7_width")
pad5 = doc.addObject("PartDesign::Pad", "Pad004")
body.addObject(pad5)
pad5.Profile = sketch7
pad5.Type = "TwoLengths"
pad5.setExpression("Length", "Params.pad5_length")
pad5.setExpression("Length2", "Params.pad5_length2")

# Sketch on YZ plane
sketch8 = doc.addObject("Sketcher::SketchObject", "Sketch007")
body.addObject(sketch8)
sketch8.AttachmentSupport = (doc.YZ_Plane, [""])
sketch8.MapMode = "FlatFace"
sketch8.addGeometry(Part.LineSegment(V(1.1, -52.8, 0), V(-2.8, -52.8, 0)), False)
sketch8.addGeometry(Part.LineSegment(V(-2.8, -52.8, 0), V(-2.8, -33.6, 0)), False)
sketch8.addGeometry(Part.LineSegment(V(-2.8, -33.6, 0), V(1.1, -33.6, 0)), False)
sketch8.addGeometry(Part.LineSegment(V(1.1, -33.6, 0), V(1.1, -52.8, 0)), False)
sketch8.addGeometry(Part.LineSegment(V(1.1, -26.4, 0), V(-2.8, -26.4, 0)), False)
sketch8.addGeometry(Part.LineSegment(V(-2.8, -26.4, 0), V(-2.8, -7.2, 0)), False)
sketch8.addGeometry(Part.LineSegment(V(-2.8, -7.2, 0), V(1.1, -7.2, 0)), False)
sketch8.addGeometry(Part.LineSegment(V(1.1, -7.2, 0), V(1.1, -26.4, 0)), False)
sketch8.addConstraint(Sketcher.Constraint("Coincident", 0, 2, 1, 1))
sketch8.addConstraint(Sketcher.Constraint("Coincident", 1, 2, 2, 1))
sketch8.addConstraint(Sketcher.Constraint("Coincident", 2, 2, 3, 1))
sketch8.addConstraint(Sketcher.Constraint("Coincident", 3, 2, 0, 1))
sketch8.addConstraint(Sketcher.Constraint("Coincident", 4, 2, 5, 1))
sketch8.addConstraint(Sketcher.Constraint("Coincident", 5, 2, 6, 1))
sketch8.addConstraint(Sketcher.Constraint("Coincident", 6, 2, 7, 1))
sketch8.addConstraint(Sketcher.Constraint("Coincident", 7, 2, 4, 1))
sketch8.addConstraint(Sketcher.Constraint("Horizontal", 0))
sketch8.addConstraint(Sketcher.Constraint("Vertical", 1))
sketch8.addConstraint(Sketcher.Constraint("Horizontal", 2))
sketch8.addConstraint(Sketcher.Constraint("Vertical", 3))
sketch8.addConstraint(Sketcher.Constraint("Horizontal", 4))
sketch8.addConstraint(Sketcher.Constraint("Vertical", 5))
sketch8.addConstraint(Sketcher.Constraint("Horizontal", 6))
sketch8.addConstraint(Sketcher.Constraint("Vertical", 7))
sketch8.addConstraint(Sketcher.Constraint("Vertical", 1, 2, 4, 2))
sketch8.addConstraint(Sketcher.Constraint("Vertical", 3, 2, 6, 2))
sketch8.addConstraint(Sketcher.Constraint("Equal", 3, 5))
sketch8.addConstraint(Sketcher.Constraint("DistanceX", 0, 2, 0, 1, 3.9))
sketch8.addConstraint(Sketcher.Constraint("DistanceX", 0, 2, -1, 1, 2.8))
sketch8.addConstraint(Sketcher.Constraint("DistanceY", 0, 2, 5, 2, 45.5))
sketch8.addConstraint(Sketcher.Constraint("DistanceY", 1, 1, 1, 2, 19.125))
sketch8.addConstraint(Sketcher.Constraint("DistanceY", 0, 2, -1, 1, 52.75))
sketch8.setExpression("Constraints[19]", "Params.sketch8_width")
pocket3 = doc.addObject("PartDesign::Pocket", "Pocket002")
body.addObject(pocket3)
pocket3.Profile = sketch8
pocket3.Type = "ThroughAll"
pocket3.Reversed = True

# Sketch on YZ plane
sketch9 = doc.addObject("Sketcher::SketchObject", "Sketch008")
body.addObject(sketch9)
sketch9.AttachmentSupport = (doc.YZ_Plane, [""])
sketch9.MapMode = "FlatFace"
sketch9.addGeometry(Part.LineSegment(V(5, -53, 0), V(-3, -53, 0)), False)
sketch9.addGeometry(Part.LineSegment(V(-3, -53, 0), V(-3, -34, 0)), False)
sketch9.addGeometry(Part.LineSegment(V(-3, -34, 0), V(5, -34, 0)), False)
sketch9.addGeometry(Part.LineSegment(V(5, -34, 0), V(5, -53, 0)), False)
sketch9.addGeometry(Part.LineSegment(V(5, -26, 0), V(-3, -26, 0)), False)
sketch9.addGeometry(Part.LineSegment(V(-3, -26, 0), V(-3, -7, 0)), False)
sketch9.addGeometry(Part.LineSegment(V(-3, -7, 0), V(5, -7, 0)), False)
sketch9.addGeometry(Part.LineSegment(V(5, -7, 0), V(5, -26, 0)), False)
sketch9.addConstraint(Sketcher.Constraint("Coincident", 0, 2, 1, 1))
sketch9.addConstraint(Sketcher.Constraint("Coincident", 1, 2, 2, 1))
sketch9.addConstraint(Sketcher.Constraint("Coincident", 2, 2, 3, 1))
sketch9.addConstraint(Sketcher.Constraint("Coincident", 3, 2, 0, 1))
sketch9.addConstraint(Sketcher.Constraint("Coincident", 4, 2, 5, 1))
sketch9.addConstraint(Sketcher.Constraint("Coincident", 5, 2, 6, 1))
sketch9.addConstraint(Sketcher.Constraint("Coincident", 6, 2, 7, 1))
sketch9.addConstraint(Sketcher.Constraint("Coincident", 7, 2, 4, 1))
sketch9.addConstraint(Sketcher.Constraint("Horizontal", 0))
sketch9.addConstraint(Sketcher.Constraint("Vertical", 1))
sketch9.addConstraint(Sketcher.Constraint("Horizontal", 2))
sketch9.addConstraint(Sketcher.Constraint("Vertical", 3))
sketch9.addConstraint(Sketcher.Constraint("Horizontal", 4))
sketch9.addConstraint(Sketcher.Constraint("Vertical", 5))
sketch9.addConstraint(Sketcher.Constraint("Horizontal", 6))
sketch9.addConstraint(Sketcher.Constraint("Vertical", 7))
sketch9.addConstraint(Sketcher.Constraint("Vertical", 1, 2, 4, 2))
sketch9.addConstraint(Sketcher.Constraint("Vertical", 3, 2, 6, 2))
sketch9.addConstraint(Sketcher.Constraint("Equal", 3, 5))
sketch9.addConstraint(Sketcher.Constraint("DistanceX", 0, 2, 0, 1, 7.8))
sketch9.addConstraint(Sketcher.Constraint("DistanceX", -1, 1, 2, 2, 5.0))
sketch9.addConstraint(Sketcher.Constraint("DistanceY", 0, 2, 5, 2, 45.5))
sketch9.addConstraint(Sketcher.Constraint("DistanceY", 1, 1, 1, 2, 19.125))
sketch9.addConstraint(Sketcher.Constraint("DistanceY", 0, 2, -1, 1, 52.75))
sketch9.setExpression("Constraints[19]", "Params.sketch9_width")
pad6 = doc.addObject("PartDesign::Pad", "Pad005")
body.addObject(pad6)
pad6.Profile = sketch9
pad6.setExpression("Length", "Params.pad6_length")

# Sketch on XY plane
sketch10 = doc.addObject("Sketcher::SketchObject", "Sketch009")
body.addObject(sketch10)
sketch10.AttachmentSupport = (doc.XY_Plane, [""])
sketch10.MapMode = "FlatFace"
sketch10.AttachmentOffset = App.Placement(V(0, 0, -60), App.Rotation())
sketch10.addGeometry(Part.LineSegment(V(35, 5, 0), V(35, -5, 0)), False)
sketch10.addGeometry(Part.LineSegment(V(35, -5, 0), V(5, -5, 0)), False)
sketch10.addGeometry(Part.LineSegment(V(5, -5, 0), V(5, 5, 0)), False)
sketch10.addGeometry(Part.LineSegment(V(5, 5, 0), V(35, 5, 0)), False)
sketch10.addConstraint(Sketcher.Constraint("Coincident", 0, 2, 1, 1))
sketch10.addConstraint(Sketcher.Constraint("Coincident", 1, 2, 2, 1))
sketch10.addConstraint(Sketcher.Constraint("Coincident", 2, 2, 3, 1))
sketch10.addConstraint(Sketcher.Constraint("Coincident", 3, 2, 0, 1))
sketch10.addConstraint(Sketcher.Constraint("Vertical", 0))
sketch10.addConstraint(Sketcher.Constraint("Horizontal", 1))
sketch10.addConstraint(Sketcher.Constraint("Vertical", 2))
sketch10.addConstraint(Sketcher.Constraint("Horizontal", 3))
sketch10.addConstraint(Sketcher.Constraint("DistanceX", 1, 2, 1, 1, 30.0))
sketch10.addConstraint(Sketcher.Constraint("DistanceY", 0, 2, 0, 1, 10.0))
sketch10.addConstraint(Sketcher.Constraint("DistanceX", -1, 1, 0, 2, 35.0))
sketch10.addConstraint(Sketcher.Constraint("DistanceY", 0, 2, -1, 1, 5.0))
sketch10.setExpression("Constraints[8]", "Params.sketch10_width")
sketch10.setExpression("Constraints[9]", "Params.sketch10_height")
pocket4 = doc.addObject("PartDesign::Pocket", "Pocket003")
body.addObject(pocket4)
pocket4.Profile = sketch10
pocket4.setExpression("Length", "Params.pocket4_length")
pocket4.Reversed = True

doc.recompute()
